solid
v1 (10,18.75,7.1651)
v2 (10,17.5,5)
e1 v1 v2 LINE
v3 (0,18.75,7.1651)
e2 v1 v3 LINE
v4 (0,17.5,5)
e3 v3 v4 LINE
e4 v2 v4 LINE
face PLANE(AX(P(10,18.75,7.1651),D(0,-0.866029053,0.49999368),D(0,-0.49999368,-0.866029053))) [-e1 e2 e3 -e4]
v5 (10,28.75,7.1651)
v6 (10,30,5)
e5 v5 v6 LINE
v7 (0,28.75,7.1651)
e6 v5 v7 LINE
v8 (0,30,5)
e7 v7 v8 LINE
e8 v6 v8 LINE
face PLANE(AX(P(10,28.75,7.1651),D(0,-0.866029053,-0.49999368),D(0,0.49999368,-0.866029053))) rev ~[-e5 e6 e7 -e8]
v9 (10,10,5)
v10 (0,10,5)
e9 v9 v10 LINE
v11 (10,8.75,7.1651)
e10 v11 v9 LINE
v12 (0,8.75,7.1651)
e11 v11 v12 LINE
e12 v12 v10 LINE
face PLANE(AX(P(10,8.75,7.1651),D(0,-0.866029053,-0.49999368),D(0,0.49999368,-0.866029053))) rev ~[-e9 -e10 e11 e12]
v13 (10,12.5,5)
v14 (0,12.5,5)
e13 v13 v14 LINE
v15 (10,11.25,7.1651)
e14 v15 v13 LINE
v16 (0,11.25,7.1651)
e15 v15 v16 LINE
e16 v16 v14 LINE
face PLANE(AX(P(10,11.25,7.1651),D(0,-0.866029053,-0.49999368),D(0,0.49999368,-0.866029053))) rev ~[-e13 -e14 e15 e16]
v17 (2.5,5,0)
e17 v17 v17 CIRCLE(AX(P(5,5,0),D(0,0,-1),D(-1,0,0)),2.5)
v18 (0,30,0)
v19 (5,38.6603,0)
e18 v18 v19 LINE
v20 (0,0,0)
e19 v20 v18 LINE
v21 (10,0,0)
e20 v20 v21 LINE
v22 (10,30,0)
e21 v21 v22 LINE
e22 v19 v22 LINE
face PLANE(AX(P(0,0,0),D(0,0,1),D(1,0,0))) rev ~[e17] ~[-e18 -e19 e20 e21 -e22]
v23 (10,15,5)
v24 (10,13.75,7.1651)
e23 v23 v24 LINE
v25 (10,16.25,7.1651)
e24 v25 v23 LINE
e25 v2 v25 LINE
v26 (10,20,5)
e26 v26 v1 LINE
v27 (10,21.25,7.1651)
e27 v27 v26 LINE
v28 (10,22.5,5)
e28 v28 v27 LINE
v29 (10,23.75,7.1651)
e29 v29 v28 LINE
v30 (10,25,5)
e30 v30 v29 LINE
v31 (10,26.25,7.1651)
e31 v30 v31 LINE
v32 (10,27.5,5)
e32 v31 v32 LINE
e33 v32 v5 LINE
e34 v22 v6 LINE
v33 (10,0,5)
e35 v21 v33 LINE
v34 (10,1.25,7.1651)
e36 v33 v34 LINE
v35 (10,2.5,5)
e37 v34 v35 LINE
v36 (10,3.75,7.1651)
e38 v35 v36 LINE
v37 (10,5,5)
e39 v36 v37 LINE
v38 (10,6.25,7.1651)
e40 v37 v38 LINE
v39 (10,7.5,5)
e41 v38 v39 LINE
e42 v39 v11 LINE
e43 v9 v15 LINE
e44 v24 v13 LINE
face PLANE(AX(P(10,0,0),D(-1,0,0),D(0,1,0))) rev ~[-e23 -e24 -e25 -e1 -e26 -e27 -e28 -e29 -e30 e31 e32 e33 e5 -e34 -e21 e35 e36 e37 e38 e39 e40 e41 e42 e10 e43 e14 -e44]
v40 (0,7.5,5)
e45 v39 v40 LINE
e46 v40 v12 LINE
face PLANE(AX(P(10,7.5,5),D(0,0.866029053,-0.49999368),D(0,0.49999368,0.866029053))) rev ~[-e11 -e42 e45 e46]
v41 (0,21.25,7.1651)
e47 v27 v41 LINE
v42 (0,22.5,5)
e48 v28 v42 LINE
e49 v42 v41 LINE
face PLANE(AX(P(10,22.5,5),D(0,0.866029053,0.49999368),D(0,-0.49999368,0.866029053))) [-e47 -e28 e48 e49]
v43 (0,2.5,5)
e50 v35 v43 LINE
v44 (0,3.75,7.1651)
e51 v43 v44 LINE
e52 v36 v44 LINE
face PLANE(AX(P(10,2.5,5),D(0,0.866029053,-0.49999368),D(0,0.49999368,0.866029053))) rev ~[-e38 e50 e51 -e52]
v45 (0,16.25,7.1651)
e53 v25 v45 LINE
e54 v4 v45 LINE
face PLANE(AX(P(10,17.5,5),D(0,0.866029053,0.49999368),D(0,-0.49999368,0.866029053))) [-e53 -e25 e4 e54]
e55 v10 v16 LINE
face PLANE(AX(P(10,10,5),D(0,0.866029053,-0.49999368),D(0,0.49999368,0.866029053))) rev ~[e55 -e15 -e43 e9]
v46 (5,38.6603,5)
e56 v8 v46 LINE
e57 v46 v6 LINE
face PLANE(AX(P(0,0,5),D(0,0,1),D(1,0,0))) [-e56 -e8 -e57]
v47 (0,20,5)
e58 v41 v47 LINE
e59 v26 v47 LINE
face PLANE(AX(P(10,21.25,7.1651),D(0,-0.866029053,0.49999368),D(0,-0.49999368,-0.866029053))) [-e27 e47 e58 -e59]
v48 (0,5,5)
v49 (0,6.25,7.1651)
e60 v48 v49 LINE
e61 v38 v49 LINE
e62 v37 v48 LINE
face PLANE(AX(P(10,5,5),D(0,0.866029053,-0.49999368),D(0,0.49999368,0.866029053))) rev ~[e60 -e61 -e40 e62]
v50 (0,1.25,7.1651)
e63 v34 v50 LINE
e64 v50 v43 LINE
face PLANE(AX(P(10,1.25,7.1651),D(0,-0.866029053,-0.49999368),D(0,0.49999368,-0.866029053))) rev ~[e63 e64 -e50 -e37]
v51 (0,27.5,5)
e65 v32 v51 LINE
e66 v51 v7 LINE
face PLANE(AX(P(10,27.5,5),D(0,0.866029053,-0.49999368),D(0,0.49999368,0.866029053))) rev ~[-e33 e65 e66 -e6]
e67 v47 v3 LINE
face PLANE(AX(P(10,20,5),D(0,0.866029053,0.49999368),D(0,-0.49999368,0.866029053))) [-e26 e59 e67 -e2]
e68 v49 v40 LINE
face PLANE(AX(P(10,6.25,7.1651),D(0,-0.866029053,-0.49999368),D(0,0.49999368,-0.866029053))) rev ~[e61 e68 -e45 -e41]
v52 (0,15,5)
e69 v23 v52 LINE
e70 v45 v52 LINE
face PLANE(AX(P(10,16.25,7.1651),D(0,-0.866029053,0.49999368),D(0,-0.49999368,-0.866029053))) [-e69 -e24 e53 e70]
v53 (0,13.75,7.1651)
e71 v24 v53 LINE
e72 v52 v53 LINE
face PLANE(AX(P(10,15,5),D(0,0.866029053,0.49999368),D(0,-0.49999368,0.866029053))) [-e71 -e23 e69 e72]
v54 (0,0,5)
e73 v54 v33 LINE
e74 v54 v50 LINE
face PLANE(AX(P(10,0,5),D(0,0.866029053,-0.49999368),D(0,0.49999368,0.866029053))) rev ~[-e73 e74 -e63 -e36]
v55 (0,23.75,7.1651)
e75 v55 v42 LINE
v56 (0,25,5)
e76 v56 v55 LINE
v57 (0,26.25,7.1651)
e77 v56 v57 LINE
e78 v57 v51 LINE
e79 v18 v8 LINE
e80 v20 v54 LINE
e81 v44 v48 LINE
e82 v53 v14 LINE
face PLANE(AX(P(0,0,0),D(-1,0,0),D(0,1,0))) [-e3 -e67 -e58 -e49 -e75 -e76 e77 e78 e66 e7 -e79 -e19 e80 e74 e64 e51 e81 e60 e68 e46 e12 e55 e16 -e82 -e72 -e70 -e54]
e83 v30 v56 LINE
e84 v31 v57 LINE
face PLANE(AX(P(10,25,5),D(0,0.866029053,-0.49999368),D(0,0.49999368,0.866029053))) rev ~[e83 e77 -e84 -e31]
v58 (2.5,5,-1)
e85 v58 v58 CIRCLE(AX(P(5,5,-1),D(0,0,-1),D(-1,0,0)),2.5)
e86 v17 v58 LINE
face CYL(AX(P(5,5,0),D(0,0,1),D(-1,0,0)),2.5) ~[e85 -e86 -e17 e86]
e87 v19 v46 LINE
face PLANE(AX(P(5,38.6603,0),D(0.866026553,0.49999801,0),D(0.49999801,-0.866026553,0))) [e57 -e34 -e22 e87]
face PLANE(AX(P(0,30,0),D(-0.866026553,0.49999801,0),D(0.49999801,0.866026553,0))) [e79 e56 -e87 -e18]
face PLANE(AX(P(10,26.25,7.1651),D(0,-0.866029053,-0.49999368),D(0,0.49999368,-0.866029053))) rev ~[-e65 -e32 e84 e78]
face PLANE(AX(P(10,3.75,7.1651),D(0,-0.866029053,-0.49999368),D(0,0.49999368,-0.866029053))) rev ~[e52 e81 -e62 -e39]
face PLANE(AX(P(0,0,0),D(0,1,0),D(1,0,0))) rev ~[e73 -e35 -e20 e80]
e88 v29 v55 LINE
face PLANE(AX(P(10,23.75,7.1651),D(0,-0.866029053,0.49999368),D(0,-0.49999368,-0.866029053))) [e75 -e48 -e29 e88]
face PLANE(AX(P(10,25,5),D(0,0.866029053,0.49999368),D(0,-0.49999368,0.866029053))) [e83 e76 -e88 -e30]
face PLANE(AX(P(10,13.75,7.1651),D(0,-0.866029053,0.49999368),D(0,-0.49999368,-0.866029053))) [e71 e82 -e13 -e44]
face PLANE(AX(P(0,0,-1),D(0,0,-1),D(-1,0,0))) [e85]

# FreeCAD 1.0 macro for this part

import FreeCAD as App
import Part
import Sketcher

V = App.Vector
Q = App.Units.Quantity

doc = App.newDocument("Part")
params = doc.addObject("Spreadsheet::Sheet", "Params")
for row, (alias, value) in enumerate([
    ("sketch1_width", "10 mm"),
    ("sketch1_height", "30 mm"),
    ("sketch1_length", "10 mm"),
    ("pad1_length", "5 mm"),
    ("sketch2_width", "2.5 mm"),
    ("sketch2_length", "2.5 mm"),
    ("pad2_length", "10 mm"),
    ("sketch3_diameter", "5 mm"),
    ("pad3_length", "1 mm"),
], start=1):
    params.set(f"A{row}", alias)
    params.set(f"B{row}", "=" + value)
    params.setAlias(f"B{row}", alias)

body = doc.addObject("PartDesign::Body", "Body")

sketch1 = doc.addObject("Sketcher::SketchObject", "Sketch")
body.addObject(sketch1)
sketch1.AttachmentSupport = (doc.XY_Plane, [""])
sketch1.MapMode = "FlatFace"
sketch1.addGeometry([
    Part.LineSegment(V(0, 30, 0), V(0, 0, 0)),
    Part.LineSegment(V(0, 0, 0), V(10, 0, 0)),
    Part.LineSegment(V(10, 0, 0), V(10, 30, 0)),
    Part.LineSegment(V(10, 30, 0), V(5, 38.6603, 0)),
    Part.LineSegment(V(5, 38.6603, 0), V(0, 30, 0)),
], False)
sketch1.addConstraint([
    Sketcher.Constraint("Coincident", 0, 2, 1, 1),
    Sketcher.Constraint("Coincident", 1, 2, 2, 1),
    Sketcher.Constraint("Coincident", 2, 2, 3, 1),
    Sketcher.Constraint("Coincident", 3, 2, 4, 1),
    Sketcher.Constraint("Coincident", 4, 2, 0, 1),
    Sketcher.Constraint("Vertical", 0),
    Sketcher.Constraint("Horizontal", 1),
    Sketcher.Constraint("Vertical", 2),
    Sketcher.Constraint("Coincident", 0, 2, -1, 1),
    Sketcher.Constraint("Horizontal", 2, 2, 4, 2),
    Sketcher.Constraint("Equal", 3, 4),
    Sketcher.Constraint("DistanceX", 1, 1, 1, 2, Q("10 mm")),
    Sketcher.Constraint("DistanceY", 0, 2, 0, 1, Q("30 mm")),
    Sketcher.Constraint("Distance", 3, Q("10 mm")),
])
sketch1.setExpression("Constraints[11]", "Params.sketch1_width")
sketch1.setExpression("Constraints[12]", "Params.sketch1_height")
sketch1.setExpression("Constraints[13]", "Params.sketch1_length")
pad1 = doc.addObject("PartDesign::Pad", "Pad")
body.addObject(pad1)
pad1.Profile = sketch1
pad1.setExpression("Length", "Params.pad1_length")

sketch2 = doc.addObject("Sketcher::SketchObject", "Sketch001")
body.addObject(sketch2)
sketch2.AttachmentSupport = (doc.YZ_Plane, [""])
sketch2.MapMode = "FlatFace"
sketch2.AttachmentOffset = App.Placement(V(0, 0, 10), App.Rotation())
sketch2.addGeometry([
    Part.LineSegment(V(0, 5, 0), V(2.5, 5, 0)),
    Part.LineSegment(V(2.5, 5, 0), V(1.25, 7.1651, 0)),
    Part.LineSegment(V(1.25, 7.1651, 0), V(0, 5, 0)),
    Part.LineSegment(V(2.5, 5, 0), V(5, 5, 0)),
    Part.LineSegment(V(5, 5, 0), V(3.75, 7.1651, 0)),
    Part.LineSegment(V(3.75, 7.1651, 0), V(2.5, 5, 0)),
    Part.LineSegment(V(5, 5, 0), V(7.5, 5, 0)),
    Part.LineSegment(V(7.5, 5, 0), V(6.25, 7.1651, 0)),
    Part.LineSegment(V(6.25, 7.1651, 0), V(5, 5, 0)),
    Part.LineSegment(V(7.5, 5, 0), V(10, 5, 0)),
    Part.LineSegment(V(10, 5, 0), V(8.75, 7.1651, 0)),
    Part.LineSegment(V(8.75, 7.1651, 0), V(7.5, 5, 0)),
    Part.LineSegment(V(10, 5, 0), V(12.5, 5, 0)),
    Part.LineSegment(V(12.5, 5, 0), V(11.25, 7.1651, 0)),
    Part.LineSegment(V(11.25, 7.1651, 0), V(10, 5, 0)),
    Part.LineSegment(V(12.5, 5, 0), V(15, 5, 0)),
    Part.LineSegment(V(15, 5, 0), V(13.75, 7.1651, 0)),
    Part.LineSegment(V(13.75, 7.1651, 0), V(12.5, 5, 0)),
    Part.LineSegment(V(15, 5, 0), V(17.5, 5, 0)),
    Part.LineSegment(V(17.5, 5, 0), V(16.25, 7.1651, 0)),
    Part.LineSegment(V(16.25, 7.1651, 0), V(15, 5, 0)),
    Part.LineSegment(V(17.5, 5, 0), V(20, 5, 0)),
    Part.LineSegment(V(20, 5, 0), V(18.75, 7.1651, 0)),
    Part.LineSegment(V(18.75, 7.1651, 0), V(17.5, 5, 0)),
    Part.LineSegment(V(20, 5, 0), V(22.5, 5, 0)),
    Part.LineSegment(V(22.5, 5, 0), V(21.25, 7.1651, 0)),
    Part.LineSegment(V(21.25, 7.1651, 0), V(20, 5, 0)),
    Part.LineSegment(V(22.5, 5, 0), V(25, 5, 0)),
    Part.LineSegment(V(25, 5, 0), V(23.75, 7.1651, 0)),
    Part.LineSegment(V(23.75, 7.1651, 0), V(22.5, 5, 0)),
    Part.LineSegment(V(25, 5, 0), V(27.5, 5, 0)),
    Part.LineSegment(V(27.5, 5, 0), V(26.25, 7.1651, 0)),
    Part.LineSegment(V(26.25, 7.1651, 0), V(25, 5, 0)),
    Part.LineSegment(V(27.5, 5, 0), V(30, 5, 0)),
    Part.LineSegment(V(30, 5, 0), V(28.75, 7.1651, 0)),
    Part.LineSegment(V(28.75, 7.1651, 0), V(27.5, 5, 0)),
], False)
sketch2.addConstraint([
    Sketcher.Constraint("Coincident", 0, 2, 1, 1),
    Sketcher.Constraint("Coincident", 1, 2, 2, 1),
    Sketcher.Constraint("Coincident", 2, 2, 0, 1),
    Sketcher.Constraint("Coincident", 3, 2, 4, 1),
    Sketcher.Constraint("Coincident", 4, 2, 5, 1),
    Sketcher.Constraint("Coincident", 5, 2, 3, 1),
    Sketcher.Constraint("Coincident", 6, 2, 7, 1),
    Sketcher.Constraint("Coincident", 7, 2, 8, 1),
    Sketcher.Constraint("Coincident", 8, 2, 6, 1),
    Sketcher.Constraint("Coincident", 9, 2, 10, 1),
    Sketcher.Constraint("Coincident", 10, 2, 11, 1),
    Sketcher.Constraint("Coincident", 11, 2, 9, 1),
    Sketcher.Constraint("Coincident", 12, 2, 13, 1),
    Sketcher.Constraint("Coincident", 13, 2, 14, 1),
    Sketcher.Constraint("Coincident", 14, 2, 12, 1),
    Sketcher.Constraint("Coincident", 15, 2, 16, 1),
    Sketcher.Constraint("Coincident", 16, 2, 17, 1),
    Sketcher.Constraint("Coincident", 17, 2, 15, 1),
    Sketcher.Constraint("Coincident", 18, 2, 19, 1),
    Sketcher.Constraint("Coincident", 19, 2, 20, 1),
    Sketcher.Constraint("Coincident", 20, 2, 18, 1),
    Sketcher.Constraint("Coincident", 21, 2, 22, 1),
    Sketcher.Constraint("Coincident", 22, 2, 23, 1),
    Sketcher.Constraint("Coincident", 23, 2, 21, 1),
    Sketcher.Constraint("Coincident", 24, 2, 25, 1),
    Sketcher.Constraint("Coincident", 25, 2, 26, 1),
    Sketcher.Constraint("Coincident", 26, 2, 24, 1),
    Sketcher.Constraint("Coincident", 27, 2, 28, 1),
    Sketcher.Constraint("Coincident", 28, 2, 29, 1),
    Sketcher.Constraint("Coincident", 29, 2, 27, 1),
    Sketcher.Constraint("Coincident", 30, 2, 31, 1),
    Sketcher.Constraint("Coincident", 31, 2, 32, 1),
    Sketcher.Constraint("Coincident", 32, 2, 30, 1),
    Sketcher.Constraint("Coincident", 33, 2, 34, 1),
    Sketcher.Constraint("Coincident", 34, 2, 35, 1),
    Sketcher.Constraint("Coincident", 35, 2, 33, 1),
    Sketcher.Constraint("Horizontal", 0),
    Sketcher.Constraint("Horizontal", 3),
    Sketcher.Constraint("Horizontal", 6),
    Sketcher.Constraint("Horizontal", 9),
    Sketcher.Constraint("Horizontal", 12),
    Sketcher.Constraint("Horizontal", 15),
    Sketcher.Constraint("Horizontal", 18),
    Sketcher.Constraint("Horizontal", 21),
    Sketcher.Constraint("Horizontal", 24),
    Sketcher.Constraint("Horizontal", 27),
    Sketcher.Constraint("Horizontal", 30),
    Sketcher.Constraint("Horizontal", 33),
    Sketcher.Constraint("Coincident", 5, 2, 0, 2),
    Sketcher.Constraint("Coincident", 8, 2, 3, 2),
    Sketcher.Constraint("Coincident", 11, 2, 6, 2),
    Sketcher.Constraint("Coincident", 14, 2, 9, 2),
    Sketcher.Constraint("Coincident", 17, 2, 12, 2),
    Sketcher.Constraint("Coincident", 20, 2, 15, 2),
    Sketcher.Constraint("Coincident", 23, 2, 18, 2),
    Sketcher.Constraint("Coincident", 26, 2, 21, 2),
    Sketcher.Constraint("Coincident", 29, 2, 24, 2),
    Sketcher.Constraint("Coincident", 32, 2, 27, 2),
    Sketcher.Constraint("Coincident", 35, 2, 30, 2),
    Sketcher.Constraint("PointOnObject", 2, 2, -2),
    Sketcher.Constraint("Parallel", 1, 4),
    Sketcher.Constraint("Parallel", 2, 5),
    Sketcher.Constraint("Parallel", 4, 7),
    Sketcher.Constraint("Parallel", 5, 8),
    Sketcher.Constraint("Parallel", 7, 10),
    Sketcher.Constraint("Parallel", 8, 11),
    Sketcher.Constraint("Parallel", 10, 13),
    Sketcher.Constraint("Parallel", 11, 14),
    Sketcher.Constraint("Parallel", 13, 16),
    Sketcher.Constraint("Parallel", 14, 17),
    Sketcher.Constraint("Parallel", 16, 19),
    Sketcher.Constraint("Parallel", 17, 20),
    Sketcher.Constraint("Parallel", 19, 22),
    Sketcher.Constraint("Parallel", 20, 23),
    Sketcher.Constraint("Parallel", 22, 25),
    Sketcher.Constraint("Parallel", 23, 26),
    Sketcher.Constraint("Parallel", 25, 28),
    Sketcher.Constraint("Parallel", 26, 29),
    Sketcher.Constraint("Parallel", 28, 31),
    Sketcher.Constraint("Parallel", 29, 32),
    Sketcher.Constraint("Parallel", 31, 34),
    Sketcher.Constraint("Parallel", 32, 35),
    Sketcher.Constraint("Horizontal", 1, 2, 4, 2),
    Sketcher.Constraint("Horizontal", 4, 2, 7, 2),
    Sketcher.Constraint("Horizontal", 7, 2, 10, 2),
    Sketcher.Constraint("Horizontal", 10, 2, 13, 2),
    Sketcher.Constraint("Horizontal", 13, 2, 16, 2),
    Sketcher.Constraint("Horizontal", 16, 2, 19, 2),
    Sketcher.Constraint("Horizontal", 19, 2, 22, 2),
    Sketcher.Constraint("Horizontal", 22, 2, 25, 2),
    Sketcher.Constraint("Horizontal", 25, 2, 28, 2),
    Sketcher.Constraint("Horizontal", 28, 2, 31, 2),
    Sketcher.Constraint("Horizontal", 31, 2, 34, 2),
    Sketcher.Constraint("Equal", 1, 2),
    Sketcher.Constraint("DistanceX", 0, 1, 0, 2, Q("2.5 mm")),
    Sketcher.Constraint("Distance", 1, Q("2.5 mm")),
    Sketcher.Constraint("DistanceY", -1, 1, 0, 2, Q("5 mm")),
])
sketch2.setExpression("Constraints[94]", "Params.sketch2_width")
sketch2.setExpression("Constraints[95]", "Params.sketch2_length")
pad2 = doc.addObject("PartDesign::Pad", "Pad001")
body.addObject(pad2)
pad2.Profile = sketch2
pad2.setExpression("Length", "Params.pad2_length")
pad2.Reversed = True

sketch3 = doc.addObject("Sketcher::SketchObject", "Sketch002")
body.addObject(sketch3)
sketch3.AttachmentSupport = (doc.XY_Plane, [""])
sketch3.MapMode = "FlatFace"
sketch3.addGeometry(Part.Circle(V(5, 5, 0), V(0, 0, 1), 2.5), False)
sketch3.addConstraint([
    Sketcher.Constraint("Diameter", 0, Q("5 mm")),
    Sketcher.Constraint("DistanceX", -1, 1, 0, 3, Q("5 mm")),
    Sketcher.Constraint("DistanceY", -1, 1, 0, 3, Q("5 mm")),
])
sketch3.setExpression("Constraints[0]", "Params.sketch3_diameter")
pad3 = doc.addObject("PartDesign::Pad", "Pad002")
body.addObject(pad3)
pad3.Profile = sketch3
pad3.setExpression("Length", "Params.pad3_length")
pad3.Reversed = True

doc.recompute()
